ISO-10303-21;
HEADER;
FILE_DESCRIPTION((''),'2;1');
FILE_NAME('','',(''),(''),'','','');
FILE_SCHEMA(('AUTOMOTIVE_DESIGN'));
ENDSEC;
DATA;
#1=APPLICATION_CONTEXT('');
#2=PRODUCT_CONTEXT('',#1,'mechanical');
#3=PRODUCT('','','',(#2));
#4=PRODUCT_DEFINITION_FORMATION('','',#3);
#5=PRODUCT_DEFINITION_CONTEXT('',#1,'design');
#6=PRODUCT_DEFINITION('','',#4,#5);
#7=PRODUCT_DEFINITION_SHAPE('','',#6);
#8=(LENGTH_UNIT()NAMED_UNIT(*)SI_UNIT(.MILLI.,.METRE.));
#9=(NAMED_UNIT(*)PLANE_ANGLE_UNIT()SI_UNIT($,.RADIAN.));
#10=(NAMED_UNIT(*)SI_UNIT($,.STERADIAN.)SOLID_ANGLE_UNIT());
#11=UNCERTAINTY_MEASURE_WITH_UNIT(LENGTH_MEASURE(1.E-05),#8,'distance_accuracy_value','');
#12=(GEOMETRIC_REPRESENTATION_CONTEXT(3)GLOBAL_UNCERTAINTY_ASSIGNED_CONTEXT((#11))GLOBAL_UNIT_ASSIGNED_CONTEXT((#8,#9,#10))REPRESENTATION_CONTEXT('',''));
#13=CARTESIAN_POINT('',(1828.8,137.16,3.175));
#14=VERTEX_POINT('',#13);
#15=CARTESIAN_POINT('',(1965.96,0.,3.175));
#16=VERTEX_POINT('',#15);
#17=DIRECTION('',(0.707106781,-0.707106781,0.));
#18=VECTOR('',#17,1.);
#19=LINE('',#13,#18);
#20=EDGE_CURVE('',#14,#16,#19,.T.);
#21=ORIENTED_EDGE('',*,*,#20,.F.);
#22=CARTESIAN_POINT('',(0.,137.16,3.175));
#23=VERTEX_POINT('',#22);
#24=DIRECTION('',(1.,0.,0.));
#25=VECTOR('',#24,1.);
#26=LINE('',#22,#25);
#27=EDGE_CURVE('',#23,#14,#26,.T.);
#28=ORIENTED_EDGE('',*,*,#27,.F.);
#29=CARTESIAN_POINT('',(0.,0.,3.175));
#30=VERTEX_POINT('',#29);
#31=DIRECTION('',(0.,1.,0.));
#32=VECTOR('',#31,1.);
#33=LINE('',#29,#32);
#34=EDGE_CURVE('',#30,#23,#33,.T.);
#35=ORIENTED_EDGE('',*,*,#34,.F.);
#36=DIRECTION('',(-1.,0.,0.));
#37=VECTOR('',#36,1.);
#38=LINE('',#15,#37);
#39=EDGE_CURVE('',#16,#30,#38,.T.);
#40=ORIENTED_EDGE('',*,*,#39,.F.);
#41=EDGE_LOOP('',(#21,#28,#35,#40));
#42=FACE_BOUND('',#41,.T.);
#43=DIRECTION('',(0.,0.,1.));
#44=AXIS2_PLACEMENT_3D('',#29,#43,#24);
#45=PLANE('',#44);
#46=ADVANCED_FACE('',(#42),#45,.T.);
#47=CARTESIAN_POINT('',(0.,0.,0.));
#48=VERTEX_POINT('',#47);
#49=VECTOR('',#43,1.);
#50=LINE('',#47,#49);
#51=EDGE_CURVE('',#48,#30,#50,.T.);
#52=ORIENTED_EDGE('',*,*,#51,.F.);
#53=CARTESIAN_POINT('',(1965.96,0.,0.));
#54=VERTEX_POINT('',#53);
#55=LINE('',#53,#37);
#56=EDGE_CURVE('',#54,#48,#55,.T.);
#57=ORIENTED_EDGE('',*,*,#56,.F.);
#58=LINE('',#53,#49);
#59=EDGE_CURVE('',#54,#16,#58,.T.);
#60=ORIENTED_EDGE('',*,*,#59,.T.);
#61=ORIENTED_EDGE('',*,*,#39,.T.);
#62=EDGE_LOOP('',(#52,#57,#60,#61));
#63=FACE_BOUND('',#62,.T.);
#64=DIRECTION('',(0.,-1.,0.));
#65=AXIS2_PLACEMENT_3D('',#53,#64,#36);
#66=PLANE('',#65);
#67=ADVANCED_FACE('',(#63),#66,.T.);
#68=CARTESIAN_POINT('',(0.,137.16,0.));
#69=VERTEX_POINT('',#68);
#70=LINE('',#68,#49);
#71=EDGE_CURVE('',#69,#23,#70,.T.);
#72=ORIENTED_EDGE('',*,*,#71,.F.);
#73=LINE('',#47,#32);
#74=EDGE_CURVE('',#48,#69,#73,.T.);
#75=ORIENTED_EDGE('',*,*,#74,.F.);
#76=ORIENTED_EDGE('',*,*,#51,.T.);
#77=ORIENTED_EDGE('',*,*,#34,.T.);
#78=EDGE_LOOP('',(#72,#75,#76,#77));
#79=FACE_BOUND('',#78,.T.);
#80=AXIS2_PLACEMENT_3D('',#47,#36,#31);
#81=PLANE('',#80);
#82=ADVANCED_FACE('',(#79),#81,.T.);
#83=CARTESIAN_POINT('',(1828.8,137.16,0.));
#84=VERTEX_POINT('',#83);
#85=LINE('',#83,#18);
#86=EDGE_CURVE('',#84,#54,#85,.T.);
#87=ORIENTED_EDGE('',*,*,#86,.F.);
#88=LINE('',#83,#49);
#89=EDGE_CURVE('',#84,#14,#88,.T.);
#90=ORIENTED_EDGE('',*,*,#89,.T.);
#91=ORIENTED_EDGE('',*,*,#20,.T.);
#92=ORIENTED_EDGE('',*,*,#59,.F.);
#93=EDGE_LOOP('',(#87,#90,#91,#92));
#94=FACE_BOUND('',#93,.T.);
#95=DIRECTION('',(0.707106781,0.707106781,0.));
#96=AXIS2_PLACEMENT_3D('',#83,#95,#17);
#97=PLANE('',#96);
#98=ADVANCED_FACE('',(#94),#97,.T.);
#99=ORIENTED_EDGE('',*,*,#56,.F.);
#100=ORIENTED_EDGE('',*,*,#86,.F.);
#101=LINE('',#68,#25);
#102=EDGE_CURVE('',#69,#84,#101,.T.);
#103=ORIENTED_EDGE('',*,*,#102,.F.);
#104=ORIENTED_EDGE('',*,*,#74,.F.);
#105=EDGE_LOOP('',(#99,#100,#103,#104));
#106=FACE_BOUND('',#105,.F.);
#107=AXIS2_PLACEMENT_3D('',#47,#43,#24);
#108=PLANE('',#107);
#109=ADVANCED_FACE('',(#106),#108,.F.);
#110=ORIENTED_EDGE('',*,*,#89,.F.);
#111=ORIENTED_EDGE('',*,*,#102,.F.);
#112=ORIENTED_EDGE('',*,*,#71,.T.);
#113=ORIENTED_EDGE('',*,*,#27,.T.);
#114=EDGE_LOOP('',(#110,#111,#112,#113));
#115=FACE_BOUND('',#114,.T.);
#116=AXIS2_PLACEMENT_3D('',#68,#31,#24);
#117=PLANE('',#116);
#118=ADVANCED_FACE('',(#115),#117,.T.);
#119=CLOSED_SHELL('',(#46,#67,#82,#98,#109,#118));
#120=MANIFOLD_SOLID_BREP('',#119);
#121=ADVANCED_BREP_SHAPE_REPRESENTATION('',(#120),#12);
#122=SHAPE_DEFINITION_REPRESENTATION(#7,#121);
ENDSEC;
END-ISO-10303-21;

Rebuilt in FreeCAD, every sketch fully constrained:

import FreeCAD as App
import Part
import Sketcher
from FreeCAD import Vector
Q = App.Units.Quantity


def add_polygon(sketch, points):
    """Adds a closed chain of lines whose ends are joined by coincident constraints."""
    first, n = sketch.GeometryCount, len(points)
    for a, b in zip(points, points[1:] + points[:1]):
        sketch.addGeometry(Part.LineSegment(App.Vector(*a, 0), App.Vector(*b, 0)), False)
    for i in range(n):
        sketch.addConstraint(Sketcher.Constraint("Coincident", first + i, 2, first + (i + 1) % n, 1))

doc = App.newDocument("Part")
body = doc.addObject("PartDesign::Body", "Body")

# Sketch on XY plane
sketch1 = body.newObject("Sketcher::SketchObject", "Sketch")
sketch1.AttachmentSupport = (doc.getObject("XY_Plane"), [""])
sketch1.MapMode = "FlatFace"
add_polygon(sketch1, [(0, 137), (0, 0), (1966, 0), (1829, 137)])  # lines 0-3
sketch1.addConstraint(Sketcher.Constraint("Vertical", 0))
sketch1.addConstraint(Sketcher.Constraint("Horizontal", 1))
sketch1.addConstraint(Sketcher.Constraint("Horizontal", 3))
sketch1.addConstraint(Sketcher.Constraint("Coincident", 0, 2, -1, 1))
sketch1.addConstraint(Sketcher.Constraint("DistanceX", 3, 2, 3, 1, Q("72 in")))
sketch1.addConstraint(Sketcher.Constraint("DistanceY", 0, 2, 0, 1, Q("5.4 in")))
sketch1.addConstraint(Sketcher.Constraint("DistanceX", 2, 2, 1, 2, Q("5.4 in")))
pad1 = body.newObject("PartDesign::Pad", "Pad")
pad1.Profile = sketch1
pad1.Length = Q("0.125 in")

doc.recompute()
